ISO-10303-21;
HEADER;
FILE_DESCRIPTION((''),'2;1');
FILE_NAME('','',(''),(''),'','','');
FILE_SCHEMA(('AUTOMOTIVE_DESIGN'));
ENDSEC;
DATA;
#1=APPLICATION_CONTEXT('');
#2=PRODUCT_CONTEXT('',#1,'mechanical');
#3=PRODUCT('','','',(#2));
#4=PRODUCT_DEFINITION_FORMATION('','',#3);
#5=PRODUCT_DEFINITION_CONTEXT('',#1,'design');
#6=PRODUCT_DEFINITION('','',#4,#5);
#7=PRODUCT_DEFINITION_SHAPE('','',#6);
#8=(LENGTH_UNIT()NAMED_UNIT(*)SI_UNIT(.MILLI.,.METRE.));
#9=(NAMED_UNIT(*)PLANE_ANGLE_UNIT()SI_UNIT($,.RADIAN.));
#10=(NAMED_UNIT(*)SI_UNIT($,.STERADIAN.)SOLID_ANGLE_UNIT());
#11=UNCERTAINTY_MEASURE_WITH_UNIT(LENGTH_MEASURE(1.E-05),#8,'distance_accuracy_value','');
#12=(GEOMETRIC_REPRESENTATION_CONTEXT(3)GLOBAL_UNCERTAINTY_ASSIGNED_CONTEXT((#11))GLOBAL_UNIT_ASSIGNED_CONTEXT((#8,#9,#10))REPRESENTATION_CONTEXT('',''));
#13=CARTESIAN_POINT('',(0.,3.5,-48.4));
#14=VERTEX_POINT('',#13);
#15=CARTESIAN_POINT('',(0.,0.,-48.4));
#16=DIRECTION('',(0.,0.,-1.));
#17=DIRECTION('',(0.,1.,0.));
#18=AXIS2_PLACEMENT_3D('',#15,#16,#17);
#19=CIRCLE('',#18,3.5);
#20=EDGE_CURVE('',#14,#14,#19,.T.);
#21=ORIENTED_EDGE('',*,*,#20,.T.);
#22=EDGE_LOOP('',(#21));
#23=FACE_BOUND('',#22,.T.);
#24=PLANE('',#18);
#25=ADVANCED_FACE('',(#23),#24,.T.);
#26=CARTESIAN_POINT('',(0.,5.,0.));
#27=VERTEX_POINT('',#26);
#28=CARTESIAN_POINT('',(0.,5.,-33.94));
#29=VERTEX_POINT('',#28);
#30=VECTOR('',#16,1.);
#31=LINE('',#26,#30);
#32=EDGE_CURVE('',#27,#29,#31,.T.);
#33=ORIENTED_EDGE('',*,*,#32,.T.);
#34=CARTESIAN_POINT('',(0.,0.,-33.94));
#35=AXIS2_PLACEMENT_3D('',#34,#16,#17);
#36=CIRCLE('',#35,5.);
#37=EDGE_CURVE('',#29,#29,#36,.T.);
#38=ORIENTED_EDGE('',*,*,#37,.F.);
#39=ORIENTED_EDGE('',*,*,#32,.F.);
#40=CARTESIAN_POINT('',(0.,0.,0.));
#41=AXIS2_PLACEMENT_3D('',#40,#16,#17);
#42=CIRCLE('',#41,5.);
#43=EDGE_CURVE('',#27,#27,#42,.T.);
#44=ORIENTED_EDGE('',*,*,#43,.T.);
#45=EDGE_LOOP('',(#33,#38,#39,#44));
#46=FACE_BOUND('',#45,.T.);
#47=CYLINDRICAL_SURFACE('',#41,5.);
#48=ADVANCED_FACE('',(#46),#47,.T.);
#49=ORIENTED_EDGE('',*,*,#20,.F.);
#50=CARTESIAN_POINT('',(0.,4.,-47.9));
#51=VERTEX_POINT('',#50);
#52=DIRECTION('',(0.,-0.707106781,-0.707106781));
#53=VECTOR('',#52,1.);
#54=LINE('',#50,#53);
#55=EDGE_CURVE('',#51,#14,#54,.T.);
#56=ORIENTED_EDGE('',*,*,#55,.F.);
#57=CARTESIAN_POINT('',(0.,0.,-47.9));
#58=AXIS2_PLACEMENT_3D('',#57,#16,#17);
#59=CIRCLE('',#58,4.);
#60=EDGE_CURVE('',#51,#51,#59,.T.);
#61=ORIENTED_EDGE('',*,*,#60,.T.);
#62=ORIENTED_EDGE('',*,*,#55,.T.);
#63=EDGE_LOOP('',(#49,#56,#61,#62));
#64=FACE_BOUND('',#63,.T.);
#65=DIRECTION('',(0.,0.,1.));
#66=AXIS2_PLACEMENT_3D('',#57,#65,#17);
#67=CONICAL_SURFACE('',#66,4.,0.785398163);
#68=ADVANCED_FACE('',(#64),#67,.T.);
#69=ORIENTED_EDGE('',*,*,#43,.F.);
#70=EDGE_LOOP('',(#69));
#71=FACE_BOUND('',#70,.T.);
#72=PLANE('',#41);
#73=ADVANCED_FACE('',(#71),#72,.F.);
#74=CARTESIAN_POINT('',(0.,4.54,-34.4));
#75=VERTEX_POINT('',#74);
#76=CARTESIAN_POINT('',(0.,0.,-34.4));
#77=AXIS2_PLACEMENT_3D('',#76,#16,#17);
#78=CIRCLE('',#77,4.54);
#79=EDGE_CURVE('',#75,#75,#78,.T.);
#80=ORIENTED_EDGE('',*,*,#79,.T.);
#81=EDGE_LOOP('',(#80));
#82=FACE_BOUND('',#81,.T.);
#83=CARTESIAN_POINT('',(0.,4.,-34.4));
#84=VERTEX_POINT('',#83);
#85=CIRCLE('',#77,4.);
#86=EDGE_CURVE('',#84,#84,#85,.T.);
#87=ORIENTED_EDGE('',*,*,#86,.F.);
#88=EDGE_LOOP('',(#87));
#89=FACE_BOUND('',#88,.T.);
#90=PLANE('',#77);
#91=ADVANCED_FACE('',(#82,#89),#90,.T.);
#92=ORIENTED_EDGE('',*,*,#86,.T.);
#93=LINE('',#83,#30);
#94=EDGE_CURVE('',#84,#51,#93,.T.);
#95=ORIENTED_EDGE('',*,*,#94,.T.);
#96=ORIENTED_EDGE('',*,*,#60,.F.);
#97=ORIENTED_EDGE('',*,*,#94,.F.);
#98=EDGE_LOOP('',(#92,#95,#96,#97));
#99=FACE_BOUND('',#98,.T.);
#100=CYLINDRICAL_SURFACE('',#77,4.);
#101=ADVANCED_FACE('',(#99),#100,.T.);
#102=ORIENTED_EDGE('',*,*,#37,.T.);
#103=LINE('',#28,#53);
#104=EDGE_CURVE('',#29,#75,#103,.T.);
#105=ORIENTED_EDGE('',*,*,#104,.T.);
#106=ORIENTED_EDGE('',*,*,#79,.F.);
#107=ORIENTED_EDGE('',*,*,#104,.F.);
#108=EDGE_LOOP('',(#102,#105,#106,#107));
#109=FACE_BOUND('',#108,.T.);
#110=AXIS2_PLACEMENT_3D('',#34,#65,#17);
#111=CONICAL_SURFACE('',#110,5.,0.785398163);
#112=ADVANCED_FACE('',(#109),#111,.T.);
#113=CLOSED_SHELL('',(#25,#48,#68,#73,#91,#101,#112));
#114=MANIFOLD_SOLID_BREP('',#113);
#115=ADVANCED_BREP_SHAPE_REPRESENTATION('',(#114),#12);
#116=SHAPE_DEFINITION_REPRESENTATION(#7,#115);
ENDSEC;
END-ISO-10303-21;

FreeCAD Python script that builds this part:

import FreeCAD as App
import Part
import Sketcher
Q = App.Units.Quantity

doc = App.newDocument("Part")
params = doc.addObject("Spreadsheet::Sheet", "Params")
for row, (alias, value) in enumerate([
    ("sketch1_width", "5 mm"),
    ("sketch1_width2", "3.5 mm"),
    ("sketch1_height", "48.4 mm"),
    ("sketch1_height2", "13.5 mm"),
    ("sketch1_width3", "0.54 mm"),
    ("revolution_angle", "360 deg"),
], start=1):
    params.set(f"A{row}", alias)
    params.set(f"B{row}", "=" + value)
    params.setAlias(f"B{row}", alias)

body = doc.addObject("PartDesign::Body", "Body")

sketch1 = body.newObject("Sketcher::SketchObject", "Sketch")
sketch1.AttachmentSupport = (doc.getObject("YZ_Plane"), [""])
sketch1.MapMode = "FlatFace"
sketch1.addGeometry([
    Part.LineSegment(App.Vector(0, 0, 0), App.Vector(0, -48.4, 0)),
    Part.LineSegment(App.Vector(0, -48.4, 0), App.Vector(3.5, -48.4, 0)),
    Part.LineSegment(App.Vector(3.5, -48.4, 0), App.Vector(4, -47.9, 0)),
    Part.LineSegment(App.Vector(4, -47.9, 0), App.Vector(4, -34.4, 0)),
    Part.LineSegment(App.Vector(4, -34.4, 0), App.Vector(4.5, -34.4, 0)),
    Part.LineSegment(App.Vector(4.5, -34.4, 0), App.Vector(5, -33.9, 0)),
    Part.LineSegment(App.Vector(5, -33.9, 0), App.Vector(5, 0, 0)),
    Part.LineSegment(App.Vector(5, 0, 0), App.Vector(0, 0, 0)),
], False)
sketch1.addConstraint([
    Sketcher.Constraint("Coincident", 0, 2, 1, 1),
    Sketcher.Constraint("Coincident", 1, 2, 2, 1),
    Sketcher.Constraint("Coincident", 2, 2, 3, 1),
    Sketcher.Constraint("Coincident", 3, 2, 4, 1),
    Sketcher.Constraint("Coincident", 4, 2, 5, 1),
    Sketcher.Constraint("Coincident", 5, 2, 6, 1),
    Sketcher.Constraint("Coincident", 6, 2, 7, 1),
    Sketcher.Constraint("Coincident", 7, 2, 0, 1),
    Sketcher.Constraint("Vertical", 0),
    Sketcher.Constraint("Horizontal", 1),
    Sketcher.Constraint("Vertical", 3),
    Sketcher.Constraint("Horizontal", 4),
    Sketcher.Constraint("Vertical", 6),
    Sketcher.Constraint("Horizontal", 7),
    Sketcher.Constraint("Coincident", 7, 2, -1, 1),
    Sketcher.Constraint("Parallel", 2, 5),
    Sketcher.Constraint("DistanceX", 7, 2, 7, 1, 5.0),
    Sketcher.Constraint("Angle", 2, Q("45 deg")),
    Sketcher.Constraint("DistanceX", 1, 1, 1, 2, 3.5),
    Sketcher.Constraint("DistanceY", 0, 2, 0, 1, 48.4),
    Sketcher.Constraint("DistanceY", 3, 1, 3, 2, 13.5),
    Sketcher.Constraint("DistanceX", -1, 1, 2, 2, 4.0),
    Sketcher.Constraint("DistanceX", 4, 1, 4, 2, 0.54),
])
sketch1.setExpression("Constraints[16]", "Params.sketch1_width")
sketch1.setExpression("Constraints[18]", "Params.sketch1_width2")
sketch1.setExpression("Constraints[19]", "Params.sketch1_height")
sketch1.setExpression("Constraints[20]", "Params.sketch1_height2")
sketch1.setExpression("Constraints[22]", "Params.sketch1_width3")
revolution = body.newObject("PartDesign::Revolution", "Revolution")
revolution.Profile = sketch1
revolution.ReferenceAxis = (sketch1, ["V_Axis"])
revolution.setExpression("Angle", "Params.revolution_angle")

doc.recompute()
